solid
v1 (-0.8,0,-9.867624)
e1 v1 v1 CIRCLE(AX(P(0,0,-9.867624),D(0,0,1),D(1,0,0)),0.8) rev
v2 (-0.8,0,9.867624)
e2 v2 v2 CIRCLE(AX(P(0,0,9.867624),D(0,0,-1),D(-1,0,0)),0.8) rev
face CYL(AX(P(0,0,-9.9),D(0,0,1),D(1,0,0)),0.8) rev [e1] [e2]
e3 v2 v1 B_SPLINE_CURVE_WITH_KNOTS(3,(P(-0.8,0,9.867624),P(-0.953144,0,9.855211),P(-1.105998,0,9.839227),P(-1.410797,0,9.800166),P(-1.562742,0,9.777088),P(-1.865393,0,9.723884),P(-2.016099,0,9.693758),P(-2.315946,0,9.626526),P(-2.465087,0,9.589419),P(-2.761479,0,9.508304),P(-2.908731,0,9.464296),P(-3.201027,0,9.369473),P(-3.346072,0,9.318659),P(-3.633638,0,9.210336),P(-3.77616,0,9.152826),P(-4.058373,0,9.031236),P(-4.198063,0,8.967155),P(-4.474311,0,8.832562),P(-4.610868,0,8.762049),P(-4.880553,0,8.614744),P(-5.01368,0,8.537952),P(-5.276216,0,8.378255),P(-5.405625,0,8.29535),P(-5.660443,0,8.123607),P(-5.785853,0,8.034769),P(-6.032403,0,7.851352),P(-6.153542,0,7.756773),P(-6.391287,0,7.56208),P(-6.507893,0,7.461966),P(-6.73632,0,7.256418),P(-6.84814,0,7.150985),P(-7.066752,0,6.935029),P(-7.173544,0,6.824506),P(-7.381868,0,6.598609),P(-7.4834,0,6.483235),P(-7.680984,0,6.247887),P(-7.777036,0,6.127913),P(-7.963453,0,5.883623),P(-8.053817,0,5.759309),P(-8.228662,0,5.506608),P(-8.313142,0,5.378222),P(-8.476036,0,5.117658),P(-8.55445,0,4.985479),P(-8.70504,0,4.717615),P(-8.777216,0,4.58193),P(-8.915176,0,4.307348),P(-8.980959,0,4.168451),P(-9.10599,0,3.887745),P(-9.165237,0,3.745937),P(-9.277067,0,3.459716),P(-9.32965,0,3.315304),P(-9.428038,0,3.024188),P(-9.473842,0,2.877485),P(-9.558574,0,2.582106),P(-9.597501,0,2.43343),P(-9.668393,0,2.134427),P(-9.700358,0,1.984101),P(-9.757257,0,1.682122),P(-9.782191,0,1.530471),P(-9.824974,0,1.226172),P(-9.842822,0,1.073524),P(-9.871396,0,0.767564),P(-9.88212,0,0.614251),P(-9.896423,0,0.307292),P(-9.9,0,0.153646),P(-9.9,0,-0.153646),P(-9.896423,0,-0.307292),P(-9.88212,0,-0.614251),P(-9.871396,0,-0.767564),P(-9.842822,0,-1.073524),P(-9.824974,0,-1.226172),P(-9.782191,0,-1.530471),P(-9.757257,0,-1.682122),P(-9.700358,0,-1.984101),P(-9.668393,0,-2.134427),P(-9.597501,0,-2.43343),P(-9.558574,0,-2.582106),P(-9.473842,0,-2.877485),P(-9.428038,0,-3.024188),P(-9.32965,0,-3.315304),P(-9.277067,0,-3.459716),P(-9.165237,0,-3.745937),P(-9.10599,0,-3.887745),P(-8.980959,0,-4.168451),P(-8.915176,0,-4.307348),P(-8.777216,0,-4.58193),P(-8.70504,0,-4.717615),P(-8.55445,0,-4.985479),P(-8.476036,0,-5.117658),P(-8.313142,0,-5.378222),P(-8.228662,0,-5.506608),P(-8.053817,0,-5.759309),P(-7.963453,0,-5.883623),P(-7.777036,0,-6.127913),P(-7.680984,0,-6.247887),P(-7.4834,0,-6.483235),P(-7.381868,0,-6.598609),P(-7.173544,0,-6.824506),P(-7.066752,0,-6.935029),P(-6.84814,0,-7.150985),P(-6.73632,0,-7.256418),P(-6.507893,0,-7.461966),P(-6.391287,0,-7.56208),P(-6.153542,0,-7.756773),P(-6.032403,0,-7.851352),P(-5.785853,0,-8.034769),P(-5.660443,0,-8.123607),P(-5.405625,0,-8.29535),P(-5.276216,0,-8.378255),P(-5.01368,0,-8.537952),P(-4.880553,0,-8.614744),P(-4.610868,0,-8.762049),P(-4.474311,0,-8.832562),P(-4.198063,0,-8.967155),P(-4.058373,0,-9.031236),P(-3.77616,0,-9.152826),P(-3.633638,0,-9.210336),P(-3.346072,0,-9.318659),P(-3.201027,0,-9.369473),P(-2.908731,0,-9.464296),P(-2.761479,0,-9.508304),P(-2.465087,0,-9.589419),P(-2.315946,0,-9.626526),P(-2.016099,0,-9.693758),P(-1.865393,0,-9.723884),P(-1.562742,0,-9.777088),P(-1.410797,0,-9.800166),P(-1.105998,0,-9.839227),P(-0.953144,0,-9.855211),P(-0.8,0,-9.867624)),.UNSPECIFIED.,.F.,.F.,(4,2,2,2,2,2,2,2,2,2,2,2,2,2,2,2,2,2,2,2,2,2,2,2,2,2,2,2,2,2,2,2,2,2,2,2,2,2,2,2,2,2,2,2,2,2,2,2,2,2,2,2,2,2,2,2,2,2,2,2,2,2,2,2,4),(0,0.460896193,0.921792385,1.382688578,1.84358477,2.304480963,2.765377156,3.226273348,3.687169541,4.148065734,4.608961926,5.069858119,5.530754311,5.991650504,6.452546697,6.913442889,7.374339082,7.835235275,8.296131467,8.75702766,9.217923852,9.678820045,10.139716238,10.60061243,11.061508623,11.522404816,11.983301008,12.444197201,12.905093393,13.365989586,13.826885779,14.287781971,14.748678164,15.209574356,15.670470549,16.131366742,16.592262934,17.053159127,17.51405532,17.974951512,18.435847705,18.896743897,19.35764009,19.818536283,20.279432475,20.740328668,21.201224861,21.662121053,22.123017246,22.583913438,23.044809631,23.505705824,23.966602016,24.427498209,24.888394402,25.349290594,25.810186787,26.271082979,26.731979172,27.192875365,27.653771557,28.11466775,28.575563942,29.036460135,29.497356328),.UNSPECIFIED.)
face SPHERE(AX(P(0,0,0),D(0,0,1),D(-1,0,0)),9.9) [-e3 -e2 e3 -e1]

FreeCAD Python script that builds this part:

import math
import FreeCAD as App
import Part
import Sketcher
from FreeCAD import Vector
Q = App.Units.Quantity

doc = App.newDocument("Part")
body = doc.addObject("PartDesign::Body", "Body")

sketch1 = body.newObject("Sketcher::SketchObject", "Sketch")
sketch1.AttachmentSupport = (doc.getObject("XZ_Plane"), [""])
sketch1.MapMode = "FlatFace"
sketch1.addGeometry([
    Part.LineSegment(Vector(0, -10, 0), Vector(0, 10, 0)),
    Part.ArcOfCircle(Part.Circle(Vector(0, 0, 0), Vector(0, 0, 1), 10), math.radians(-90), math.radians(90)),
], False)
sketch1.addConstraint([
    Sketcher.Constraint("Coincident", 0, 1, 1, 1),
    Sketcher.Constraint("Coincident", 1, 2, 0, 2),
    Sketcher.Constraint("Vertical", 0),
    Sketcher.Constraint("Coincident", 1, 3, -1, 1),
    Sketcher.Constraint("PointOnObject", 0, 1, -2),
    Sketcher.Constraint("Radius", 1, Q("9.9 mm")),
])
revolution = body.newObject("PartDesign::Revolution", "Revolution")
revolution.Profile = sketch1
revolution.ReferenceAxis = (sketch1, ["V_Axis"])
revolution.Angle = 360

sketch2 = body.newObject("Sketcher::SketchObject", "Sketch001")
sketch2.AttachmentSupport = (doc.getObject("XY_Plane"), [""])
sketch2.MapMode = "FlatFace"
sketch2.addGeometry(Part.Circle(Vector(0, 0, 0), Vector(0, 0, 1), 0.8), False)
sketch2.addConstraint([
    Sketcher.Constraint("Coincident", 0, 3, -1, 1),
    Sketcher.Constraint("Diameter", 0, Q("1.6 mm")),
])
pocket1 = body.newObject("PartDesign::Pocket", "Pocket")
pocket1.Profile = sketch2
pocket1.Type = "ThroughAll"
pocket1.Midplane = True

doc.recompute()
